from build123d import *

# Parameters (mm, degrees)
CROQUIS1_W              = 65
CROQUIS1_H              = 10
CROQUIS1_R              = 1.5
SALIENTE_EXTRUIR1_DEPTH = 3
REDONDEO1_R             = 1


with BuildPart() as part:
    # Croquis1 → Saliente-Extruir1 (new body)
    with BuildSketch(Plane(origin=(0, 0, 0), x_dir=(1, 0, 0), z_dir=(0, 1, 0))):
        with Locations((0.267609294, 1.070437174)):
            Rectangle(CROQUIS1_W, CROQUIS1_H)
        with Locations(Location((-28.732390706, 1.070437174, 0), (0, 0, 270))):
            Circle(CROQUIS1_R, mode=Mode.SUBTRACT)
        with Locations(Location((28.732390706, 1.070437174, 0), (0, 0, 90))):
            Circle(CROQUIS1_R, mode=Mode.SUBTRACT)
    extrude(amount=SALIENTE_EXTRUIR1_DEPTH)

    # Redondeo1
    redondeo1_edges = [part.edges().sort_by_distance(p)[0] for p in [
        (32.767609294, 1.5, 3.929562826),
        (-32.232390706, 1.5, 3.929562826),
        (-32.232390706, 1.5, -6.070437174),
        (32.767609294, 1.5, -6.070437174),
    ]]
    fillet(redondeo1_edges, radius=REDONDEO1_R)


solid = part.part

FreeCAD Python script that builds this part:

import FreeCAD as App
import Part
import Sketcher
from FreeCAD import Vector


def edges_at(feature, points):
    """Names of the edges that pass closest to the given points."""
    edges = feature.Shape.Edges
    near = lambda p: min(range(len(edges)), key=lambda i: edges[i].distToShape(Part.Vertex(*p))[0])
    return sorted({f"Edge{near(p) + 1}" for p in points})


def add_polygon(sketch, points):
    """Adds a closed chain of lines whose ends are joined by coincident constraints."""
    first, n = sketch.GeometryCount, len(points)
    for a, b in zip(points, points[1:] + points[:1]):
        sketch.addGeometry(Part.LineSegment(App.Vector(*a, 0), App.Vector(*b, 0)), False)
    for i in range(n):
        sketch.addConstraint(Sketcher.Constraint("Coincident", first + i, 2, first + (i + 1) % n, 1))

doc = App.newDocument("Part")
params = doc.addObject("Spreadsheet::Sheet", "Params")
for row, (alias, value) in enumerate([
    ("sketch1_diameter", "3 mm"),
    ("sketch1_width", "65 mm"),
    ("sketch1_height", "10 mm"),
    ("pad1_length", "3 mm"),
    ("fillet_radius", "1 mm"),
], start=1):
    params.set(f"A{row}", alias)
    params.set(f"B{row}", "=" + value)
    params.setAlias(f"B{row}", alias)

body = doc.addObject("PartDesign::Body", "Body")

# Sketch on XZ plane
sketch1 = body.newObject("Sketcher::SketchObject", "Sketch")
sketch1.AttachmentSupport = (doc.getObject("XZ_Plane"), [""])
sketch1.MapMode = "FlatFace"
add_polygon(sketch1, [(-32.2, -6.1), (-32.2, 3.9), (32.8, 3.9), (32.8, -6.1)])  # lines 0-3
sketch1.addGeometry(Part.Circle(Vector(-28.7, -1.1, 0), Vector(0, 0, 1), 1.5), False)  # 4
sketch1.addGeometry(Part.Circle(Vector(28.7, -1.1, 0), Vector(0, 0, 1), 1.5), False)  # 5
sketch1.addConstraint(Sketcher.Constraint("Vertical", 0))
sketch1.addConstraint(Sketcher.Constraint("Horizontal", 1))
sketch1.addConstraint(Sketcher.Constraint("Vertical", 2))
sketch1.addConstraint(Sketcher.Constraint("Horizontal", 3))
sketch1.addConstraint(Sketcher.Constraint("Equal", 4, 5))
sketch1.addConstraint(Sketcher.Constraint("Symmetric", 4, 3, 5, 3, -2))
sketch1.addConstraint(Sketcher.Constraint("Diameter", 4, 3.0))
sketch1.addConstraint(Sketcher.Constraint("DistanceX", 1, 1, 1, 2, 65.0))
sketch1.addConstraint(Sketcher.Constraint("DistanceY", 0, 1, 0, 2, 10.0))
sketch1.addConstraint(Sketcher.Constraint("DistanceY", 4, 3, 0, 2, 5.0))
sketch1.addConstraint(Sketcher.Constraint("DistanceX", 0, 2, 4, 3, 3.5))
sketch1.addConstraint(Sketcher.Constraint("DistanceX", 4, 3, -1, 1, 28.732391))
sketch1.addConstraint(Sketcher.Constraint("DistanceY", 4, 3, -1, 1, 1.070437))
sketch1.setExpression("Constraints[10]", "Params.sketch1_diameter")
sketch1.setExpression("Constraints[11]", "Params.sketch1_width")
sketch1.setExpression("Constraints[12]", "Params.sketch1_height")
pad1 = body.newObject("PartDesign::Pad", "Pad")
pad1.Profile = sketch1
pad1.setExpression("Length", "Params.pad1_length")
pad1.Reversed = True
doc.recompute()

fillet = body.newObject("PartDesign::Fillet", "Fillet")
fillet.Base = (pad1, edges_at(pad1, [
    (32.768, 1.5, 3.93),
    (-32.232, 1.5, 3.93),
    (-32.232, 1.5, -6.07),
    (32.768, 1.5, -6.07),
]))
fillet.setExpression("Radius", "Params.fillet_radius")

doc.recompute()
